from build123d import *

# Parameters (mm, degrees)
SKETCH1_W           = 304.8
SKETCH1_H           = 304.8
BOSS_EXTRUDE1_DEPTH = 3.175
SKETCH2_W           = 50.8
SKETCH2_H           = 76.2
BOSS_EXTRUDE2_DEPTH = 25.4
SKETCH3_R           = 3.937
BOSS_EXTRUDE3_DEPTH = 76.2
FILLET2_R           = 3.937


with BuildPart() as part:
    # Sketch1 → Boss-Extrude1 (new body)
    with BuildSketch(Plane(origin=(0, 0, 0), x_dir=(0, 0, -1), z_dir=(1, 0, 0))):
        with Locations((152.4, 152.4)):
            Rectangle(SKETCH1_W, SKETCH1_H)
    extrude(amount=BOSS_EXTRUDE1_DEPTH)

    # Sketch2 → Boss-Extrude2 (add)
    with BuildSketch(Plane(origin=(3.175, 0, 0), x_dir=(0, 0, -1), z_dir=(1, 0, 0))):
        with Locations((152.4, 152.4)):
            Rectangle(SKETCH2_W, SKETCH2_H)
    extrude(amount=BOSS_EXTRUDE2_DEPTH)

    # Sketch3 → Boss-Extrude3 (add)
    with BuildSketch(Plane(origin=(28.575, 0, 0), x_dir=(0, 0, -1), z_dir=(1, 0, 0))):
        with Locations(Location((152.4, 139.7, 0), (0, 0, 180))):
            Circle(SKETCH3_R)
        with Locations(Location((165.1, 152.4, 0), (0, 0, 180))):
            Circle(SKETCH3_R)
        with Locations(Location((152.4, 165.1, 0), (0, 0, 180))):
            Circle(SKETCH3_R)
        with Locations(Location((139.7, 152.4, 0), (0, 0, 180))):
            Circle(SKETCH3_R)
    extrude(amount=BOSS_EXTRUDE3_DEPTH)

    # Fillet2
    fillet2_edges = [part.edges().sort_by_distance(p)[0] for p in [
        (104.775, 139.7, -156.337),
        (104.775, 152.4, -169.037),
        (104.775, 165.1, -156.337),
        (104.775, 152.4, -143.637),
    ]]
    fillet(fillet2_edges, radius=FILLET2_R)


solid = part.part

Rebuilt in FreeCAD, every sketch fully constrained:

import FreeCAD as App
import Part
import Sketcher
Q = App.Units.Quantity


def edges_at(feature, points):
    """Names of the edges that pass closest to the given points."""
    edges = feature.Shape.Edges
    near = lambda p: min(range(len(edges)), key=lambda i: edges[i].distToShape(Part.Vertex(*p))[0])
    return sorted({f"Edge{near(p) + 1}" for p in points})

doc = App.newDocument("Part")
body = doc.addObject("PartDesign::Body", "Body")

sketch1 = body.newObject("Sketcher::SketchObject", "Sketch")
sketch1.AttachmentSupport = (doc.getObject("YZ_Plane"), [""])
sketch1.MapMode = "FlatFace"
sketch1.addGeometry([
    Part.LineSegment(App.Vector(304.8, 0, 0), App.Vector(0, 0, 0)),
    Part.LineSegment(App.Vector(0, 0, 0), App.Vector(0, -304.8, 0)),
    Part.LineSegment(App.Vector(0, -304.8, 0), App.Vector(304.8, -304.8, 0)),
    Part.LineSegment(App.Vector(304.8, -304.8, 0), App.Vector(304.8, 0, 0)),
], False)
sketch1.addConstraint([
    Sketcher.Constraint("Coincident", 0, 2, 1, 1),
    Sketcher.Constraint("Coincident", 1, 2, 2, 1),
    Sketcher.Constraint("Coincident", 2, 2, 3, 1),
    Sketcher.Constraint("Coincident", 3, 2, 0, 1),
    Sketcher.Constraint("Horizontal", 0),
    Sketcher.Constraint("Vertical", 1),
    Sketcher.Constraint("Horizontal", 2),
    Sketcher.Constraint("Vertical", 3),
    Sketcher.Constraint("Coincident", 0, 2, -1, 1),
    Sketcher.Constraint("Equal", 2, 1),
    Sketcher.Constraint("DistanceX", 0, 2, 0, 1, Q("12 in")),
])
pad1 = body.newObject("PartDesign::Pad", "Pad")
pad1.Profile = sketch1
pad1.Length = Q("0.125 in")

sketch2 = body.newObject("Sketcher::SketchObject", "Sketch001")
sketch2.AttachmentSupport = (doc.getObject("YZ_Plane"), [""])
sketch2.MapMode = "FlatFace"
sketch2.AttachmentOffset = App.Placement(App.Vector(0, 0, 0.125 * 25.4), App.Rotation())
sketch2.addGeometry([
    Part.LineSegment(App.Vector(190.5, -127, 0), App.Vector(114.3, -127, 0)),
    Part.LineSegment(App.Vector(114.3, -127, 0), App.Vector(114.3, -177.8, 0)),
    Part.LineSegment(App.Vector(114.3, -177.8, 0), App.Vector(190.5, -177.8, 0)),
    Part.LineSegment(App.Vector(190.5, -177.8, 0), App.Vector(190.5, -127, 0)),
], False)
sketch2.addConstraint([
    Sketcher.Constraint("Coincident", 0, 2, 1, 1),
    Sketcher.Constraint("Coincident", 1, 2, 2, 1),
    Sketcher.Constraint("Coincident", 2, 2, 3, 1),
    Sketcher.Constraint("Coincident", 3, 2, 0, 1),
    Sketcher.Constraint("Horizontal", 0),
    Sketcher.Constraint("Vertical", 1),
    Sketcher.Constraint("Horizontal", 2),
    Sketcher.Constraint("Vertical", 3),
    Sketcher.Constraint("DistanceX", 0, 2, 0, 1, Q("3 in")),
    Sketcher.Constraint("DistanceY", 1, 2, 1, 1, Q("2 in")),
    Sketcher.Constraint("DistanceY", 0, 2, -1, 1, Q("5 in")),
    Sketcher.Constraint("DistanceX", -1, 1, 0, 2, Q("4.5 in")),
])
pad2 = body.newObject("PartDesign::Pad", "Pad001")
pad2.Profile = sketch2
pad2.Length = Q("1 in")

sketch3 = body.newObject("Sketcher::SketchObject", "Sketch002")
sketch3.AttachmentSupport = (doc.getObject("YZ_Plane"), [""])
sketch3.MapMode = "FlatFace"
sketch3.AttachmentOffset = App.Placement(App.Vector(0, 0, 1.125 * 25.4), App.Rotation())
sketch3.addGeometry([
    Part.Circle(App.Vector(139.7, -152.4, 0), App.Vector(0, 0, 1), 3.937),
    Part.Circle(App.Vector(152.4, -165.1, 0), App.Vector(0, 0, 1), 3.937),
    Part.Circle(App.Vector(165.1, -152.4, 0), App.Vector(0, 0, 1), 3.937),
    Part.Circle(App.Vector(152.4, -139.7, 0), App.Vector(0, 0, 1), 3.937),
], False)
sketch3.addConstraint([
    Sketcher.Constraint("Equal", 0, 1),
    Sketcher.Constraint("Equal", 1, 2),
    Sketcher.Constraint("Equal", 2, 3),
    Sketcher.Constraint("Horizontal", 0, 3, 2, 3),
    Sketcher.Constraint("Vertical", 1, 3, 3, 3),
    Sketcher.Constraint("Diameter", 0, Q("0.31 in")),
    Sketcher.Constraint("DistanceY", 0, 3, -1, 1, Q("6 in")),
    Sketcher.Constraint("DistanceX", -1, 1, 1, 3, Q("6 in")),
    Sketcher.Constraint("DistanceX", 0, 3, 2, 3, Q("1 in")),
    Sketcher.Constraint("DistanceY", 1, 3, 3, 3, Q("1 in")),
    Sketcher.Constraint("DistanceX", -1, 1, 0, 3, Q("5.5 in")),
    Sketcher.Constraint("DistanceY", 1, 3, -1, 1, Q("6.5 in")),
])
pad3 = body.newObject("PartDesign::Pad", "Pad002")
pad3.Profile = sketch3
pad3.Length = Q("3 in")
doc.recompute()

fillet = body.newObject("PartDesign::Fillet", "Fillet")
fillet.Base = (pad3, edges_at(pad3, [
    (104.775, 139.7, -156.337),
    (104.775, 152.4, -169.037),
    (104.775, 165.1, -156.337),
    (104.775, 152.4, -143.637),
]))
fillet.Radius = Q("0.155 in")

doc.recompute()
